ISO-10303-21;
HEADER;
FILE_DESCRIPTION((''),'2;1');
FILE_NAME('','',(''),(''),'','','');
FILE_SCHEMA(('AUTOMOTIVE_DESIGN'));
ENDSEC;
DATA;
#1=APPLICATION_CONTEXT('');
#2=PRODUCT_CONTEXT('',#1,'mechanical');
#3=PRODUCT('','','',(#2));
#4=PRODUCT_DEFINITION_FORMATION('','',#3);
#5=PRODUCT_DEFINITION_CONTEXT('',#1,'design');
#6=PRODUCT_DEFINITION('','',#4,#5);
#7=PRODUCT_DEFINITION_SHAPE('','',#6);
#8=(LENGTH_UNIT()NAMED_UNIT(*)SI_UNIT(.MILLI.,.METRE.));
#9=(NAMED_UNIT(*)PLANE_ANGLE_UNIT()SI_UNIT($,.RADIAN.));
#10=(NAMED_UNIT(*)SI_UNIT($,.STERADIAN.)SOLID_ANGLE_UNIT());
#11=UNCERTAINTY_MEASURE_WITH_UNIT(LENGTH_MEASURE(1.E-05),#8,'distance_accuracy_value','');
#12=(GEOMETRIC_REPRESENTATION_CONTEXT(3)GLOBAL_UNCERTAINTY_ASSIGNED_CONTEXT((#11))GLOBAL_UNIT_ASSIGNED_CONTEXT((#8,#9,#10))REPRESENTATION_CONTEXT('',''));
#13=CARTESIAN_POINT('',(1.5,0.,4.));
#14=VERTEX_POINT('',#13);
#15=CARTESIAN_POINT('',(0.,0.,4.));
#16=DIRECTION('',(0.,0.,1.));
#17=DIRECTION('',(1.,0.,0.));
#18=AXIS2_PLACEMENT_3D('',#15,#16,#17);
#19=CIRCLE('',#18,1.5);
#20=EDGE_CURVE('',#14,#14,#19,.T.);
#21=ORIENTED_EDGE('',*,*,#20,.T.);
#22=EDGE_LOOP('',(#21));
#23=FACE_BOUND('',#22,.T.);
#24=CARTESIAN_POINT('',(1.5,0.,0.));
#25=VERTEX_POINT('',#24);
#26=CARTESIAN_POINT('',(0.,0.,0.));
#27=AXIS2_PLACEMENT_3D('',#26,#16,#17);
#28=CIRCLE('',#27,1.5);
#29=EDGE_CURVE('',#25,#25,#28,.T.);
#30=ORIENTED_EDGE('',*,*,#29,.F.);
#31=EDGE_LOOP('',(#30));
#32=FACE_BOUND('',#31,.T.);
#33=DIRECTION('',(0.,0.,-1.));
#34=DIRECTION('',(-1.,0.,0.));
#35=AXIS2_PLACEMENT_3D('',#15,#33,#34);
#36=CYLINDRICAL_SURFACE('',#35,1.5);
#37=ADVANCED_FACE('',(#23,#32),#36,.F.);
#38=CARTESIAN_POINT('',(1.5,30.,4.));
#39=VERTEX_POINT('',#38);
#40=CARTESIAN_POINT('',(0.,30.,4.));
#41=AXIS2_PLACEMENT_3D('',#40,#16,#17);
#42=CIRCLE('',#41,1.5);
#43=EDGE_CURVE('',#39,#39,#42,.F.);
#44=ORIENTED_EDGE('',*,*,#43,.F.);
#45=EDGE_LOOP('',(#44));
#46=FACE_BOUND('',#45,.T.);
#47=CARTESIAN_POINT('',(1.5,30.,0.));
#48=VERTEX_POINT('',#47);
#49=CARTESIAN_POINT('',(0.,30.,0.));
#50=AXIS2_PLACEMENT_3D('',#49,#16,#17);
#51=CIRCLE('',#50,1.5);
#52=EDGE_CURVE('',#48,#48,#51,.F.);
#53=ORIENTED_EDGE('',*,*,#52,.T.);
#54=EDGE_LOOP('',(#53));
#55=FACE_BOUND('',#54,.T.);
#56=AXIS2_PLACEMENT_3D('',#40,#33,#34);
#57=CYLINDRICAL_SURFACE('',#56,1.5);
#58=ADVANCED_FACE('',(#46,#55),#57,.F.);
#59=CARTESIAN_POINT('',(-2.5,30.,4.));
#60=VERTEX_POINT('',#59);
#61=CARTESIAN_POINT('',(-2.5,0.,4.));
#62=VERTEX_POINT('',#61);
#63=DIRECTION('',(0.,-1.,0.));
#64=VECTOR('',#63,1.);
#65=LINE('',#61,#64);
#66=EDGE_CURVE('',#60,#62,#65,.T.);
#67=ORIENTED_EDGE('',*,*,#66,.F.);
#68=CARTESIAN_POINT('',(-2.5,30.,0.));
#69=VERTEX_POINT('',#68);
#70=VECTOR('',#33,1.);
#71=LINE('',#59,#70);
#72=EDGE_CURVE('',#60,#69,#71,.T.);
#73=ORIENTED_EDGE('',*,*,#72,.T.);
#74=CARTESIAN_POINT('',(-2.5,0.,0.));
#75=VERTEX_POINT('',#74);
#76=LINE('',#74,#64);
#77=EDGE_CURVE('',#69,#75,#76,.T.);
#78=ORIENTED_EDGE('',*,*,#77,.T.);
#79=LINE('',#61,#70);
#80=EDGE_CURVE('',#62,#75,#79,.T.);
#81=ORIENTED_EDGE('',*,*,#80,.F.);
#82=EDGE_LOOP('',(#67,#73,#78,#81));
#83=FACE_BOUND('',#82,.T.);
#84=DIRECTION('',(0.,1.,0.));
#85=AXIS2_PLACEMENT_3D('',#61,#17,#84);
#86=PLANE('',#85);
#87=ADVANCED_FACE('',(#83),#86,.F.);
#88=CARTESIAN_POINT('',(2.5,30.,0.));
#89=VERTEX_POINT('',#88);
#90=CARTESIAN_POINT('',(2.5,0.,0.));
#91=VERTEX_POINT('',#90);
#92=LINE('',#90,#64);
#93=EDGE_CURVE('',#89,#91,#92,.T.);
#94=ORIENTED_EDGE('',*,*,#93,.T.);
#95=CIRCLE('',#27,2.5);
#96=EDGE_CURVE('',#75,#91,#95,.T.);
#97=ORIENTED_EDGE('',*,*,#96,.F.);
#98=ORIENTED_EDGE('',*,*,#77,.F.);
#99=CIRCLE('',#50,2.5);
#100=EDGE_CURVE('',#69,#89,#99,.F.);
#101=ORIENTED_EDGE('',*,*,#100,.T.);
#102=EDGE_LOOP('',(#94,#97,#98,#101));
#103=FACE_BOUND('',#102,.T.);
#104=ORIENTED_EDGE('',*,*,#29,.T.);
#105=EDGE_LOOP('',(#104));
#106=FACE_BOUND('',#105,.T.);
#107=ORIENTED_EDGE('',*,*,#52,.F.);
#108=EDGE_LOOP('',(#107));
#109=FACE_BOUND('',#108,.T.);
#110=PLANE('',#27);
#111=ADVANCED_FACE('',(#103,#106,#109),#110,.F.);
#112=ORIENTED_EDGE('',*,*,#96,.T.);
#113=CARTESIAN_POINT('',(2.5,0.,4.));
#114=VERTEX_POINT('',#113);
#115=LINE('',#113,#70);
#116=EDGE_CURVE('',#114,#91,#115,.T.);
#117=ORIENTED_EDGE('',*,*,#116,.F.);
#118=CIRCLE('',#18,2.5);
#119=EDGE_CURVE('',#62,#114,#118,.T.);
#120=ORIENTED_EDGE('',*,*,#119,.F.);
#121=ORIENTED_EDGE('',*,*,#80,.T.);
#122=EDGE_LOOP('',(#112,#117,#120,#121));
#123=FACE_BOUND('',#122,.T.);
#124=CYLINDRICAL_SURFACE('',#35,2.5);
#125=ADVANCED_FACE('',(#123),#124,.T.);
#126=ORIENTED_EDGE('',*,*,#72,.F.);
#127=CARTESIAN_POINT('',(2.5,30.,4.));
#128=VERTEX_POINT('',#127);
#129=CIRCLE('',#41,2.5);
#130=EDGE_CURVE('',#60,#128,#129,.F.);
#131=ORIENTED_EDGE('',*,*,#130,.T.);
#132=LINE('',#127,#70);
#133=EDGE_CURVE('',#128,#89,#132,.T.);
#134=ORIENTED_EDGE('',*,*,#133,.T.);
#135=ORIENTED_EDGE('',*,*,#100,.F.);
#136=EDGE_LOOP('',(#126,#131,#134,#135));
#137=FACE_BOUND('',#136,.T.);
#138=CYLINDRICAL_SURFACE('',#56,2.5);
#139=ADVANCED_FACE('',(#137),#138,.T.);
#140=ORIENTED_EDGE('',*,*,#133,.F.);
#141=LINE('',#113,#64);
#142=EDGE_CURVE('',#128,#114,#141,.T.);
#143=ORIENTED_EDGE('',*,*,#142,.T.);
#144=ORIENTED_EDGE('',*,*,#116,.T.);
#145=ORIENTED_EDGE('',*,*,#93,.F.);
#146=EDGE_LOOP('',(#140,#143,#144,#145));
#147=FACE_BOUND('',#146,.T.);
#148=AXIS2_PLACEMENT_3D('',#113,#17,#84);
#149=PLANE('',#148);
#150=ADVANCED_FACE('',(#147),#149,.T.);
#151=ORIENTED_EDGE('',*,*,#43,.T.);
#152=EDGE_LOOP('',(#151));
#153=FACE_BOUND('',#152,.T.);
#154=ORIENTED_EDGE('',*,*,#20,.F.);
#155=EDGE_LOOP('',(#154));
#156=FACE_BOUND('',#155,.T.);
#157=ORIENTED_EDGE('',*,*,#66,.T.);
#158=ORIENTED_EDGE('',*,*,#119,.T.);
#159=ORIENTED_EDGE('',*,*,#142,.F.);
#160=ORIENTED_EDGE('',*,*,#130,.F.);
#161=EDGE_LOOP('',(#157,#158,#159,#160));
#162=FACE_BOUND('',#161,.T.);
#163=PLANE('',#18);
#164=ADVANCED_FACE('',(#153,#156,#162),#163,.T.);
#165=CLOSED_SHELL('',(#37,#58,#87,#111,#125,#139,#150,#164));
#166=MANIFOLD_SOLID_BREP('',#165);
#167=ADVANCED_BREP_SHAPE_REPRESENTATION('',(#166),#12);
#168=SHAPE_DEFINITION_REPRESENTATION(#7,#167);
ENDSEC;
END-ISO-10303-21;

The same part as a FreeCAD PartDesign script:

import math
import FreeCAD as App
import Part
import Sketcher

V = App.Vector

doc = App.newDocument("Part")
body = doc.addObject("PartDesign::Body", "Body")

sketch1 = body.newObject("Sketcher::SketchObject", "Sketch")
sketch1.AttachmentSupport = (doc.getObject("XY_Plane"), [""])
sketch1.MapMode = "FlatFace"
sketch1.addGeometry([
    Part.ArcOfCircle(Part.Circle(V(0, 30, 0), V(0, 0, 1), 2.5), math.radians(0), math.radians(180)),
    Part.LineSegment(V(-2.5, 30, 0), V(-2.5, 0, 0)),
    Part.ArcOfCircle(Part.Circle(V(0, 0, 0), V(0, 0, 1), 2.5), math.radians(180), math.radians(360)),
    Part.LineSegment(V(2.5, 0, 0), V(2.5, 30, 0)),
    Part.Circle(V(0, 30, 0), V(0, 0, 1), 1.5),
    Part.Circle(V(0, 0, 0), V(0, 0, 1), 1.5),
], False)
sketch1.addConstraint([
    Sketcher.Constraint("Tangent", 0, 2, 1, 1),
    Sketcher.Constraint("Tangent", 1, 2, 2, 1),
    Sketcher.Constraint("Tangent", 2, 2, 3, 1),
    Sketcher.Constraint("Tangent", 3, 2, 0, 1),
    Sketcher.Constraint("Vertical", 1),
    Sketcher.Constraint("Vertical", 3),
    Sketcher.Constraint("Coincident", 2, 3, -1, 1),
    Sketcher.Constraint("Coincident", 5, 3, -1, 1),
    Sketcher.Constraint("Coincident", 4, 3, 0, 3),
    Sketcher.Constraint("Equal", 4, 5),
    Sketcher.Constraint("Diameter", 4, 3.0),
    Sketcher.Constraint("Radius", 0, 2.5),
    Sketcher.Constraint("DistanceY", 1, 2, 1, 1, 30.0),
])
pad1 = body.newObject("PartDesign::Pad", "Pad")
pad1.Profile = sketch1
pad1.Length = 4

doc.recompute()
